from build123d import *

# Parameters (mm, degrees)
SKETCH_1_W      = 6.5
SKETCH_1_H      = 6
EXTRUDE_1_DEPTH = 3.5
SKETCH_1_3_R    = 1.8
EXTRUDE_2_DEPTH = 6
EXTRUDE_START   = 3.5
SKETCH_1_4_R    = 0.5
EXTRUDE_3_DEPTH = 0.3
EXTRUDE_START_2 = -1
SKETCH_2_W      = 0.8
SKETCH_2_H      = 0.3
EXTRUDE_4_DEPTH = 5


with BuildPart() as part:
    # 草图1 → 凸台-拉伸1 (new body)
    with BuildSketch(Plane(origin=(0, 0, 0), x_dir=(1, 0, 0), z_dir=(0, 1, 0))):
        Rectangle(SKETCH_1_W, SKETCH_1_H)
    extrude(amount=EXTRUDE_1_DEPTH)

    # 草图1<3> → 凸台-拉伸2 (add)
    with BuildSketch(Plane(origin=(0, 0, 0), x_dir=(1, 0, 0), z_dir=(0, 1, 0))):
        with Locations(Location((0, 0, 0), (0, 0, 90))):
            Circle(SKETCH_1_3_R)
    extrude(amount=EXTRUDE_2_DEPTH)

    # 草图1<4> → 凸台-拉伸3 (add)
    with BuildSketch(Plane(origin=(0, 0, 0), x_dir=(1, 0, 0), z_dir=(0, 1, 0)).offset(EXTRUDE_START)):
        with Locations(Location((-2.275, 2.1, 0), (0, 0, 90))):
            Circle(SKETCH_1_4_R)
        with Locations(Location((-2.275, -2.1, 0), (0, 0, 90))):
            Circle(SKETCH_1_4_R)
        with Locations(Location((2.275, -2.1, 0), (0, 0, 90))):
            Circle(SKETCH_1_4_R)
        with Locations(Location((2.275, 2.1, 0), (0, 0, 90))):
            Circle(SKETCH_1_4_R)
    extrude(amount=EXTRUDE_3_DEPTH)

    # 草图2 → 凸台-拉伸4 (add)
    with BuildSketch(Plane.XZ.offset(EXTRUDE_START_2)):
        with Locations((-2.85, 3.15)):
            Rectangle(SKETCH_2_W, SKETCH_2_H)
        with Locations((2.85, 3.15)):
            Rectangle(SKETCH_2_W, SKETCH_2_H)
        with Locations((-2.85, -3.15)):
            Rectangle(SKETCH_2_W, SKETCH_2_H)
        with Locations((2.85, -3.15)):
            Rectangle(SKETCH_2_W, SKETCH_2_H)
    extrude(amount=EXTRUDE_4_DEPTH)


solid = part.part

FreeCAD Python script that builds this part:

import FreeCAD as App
import Part
import Sketcher
from FreeCAD import Vector


def add_polygon(sketch, points):
    """Adds a closed chain of lines whose ends are joined by coincident constraints."""
    first, n = sketch.GeometryCount, len(points)
    for a, b in zip(points, points[1:] + points[:1]):
        sketch.addGeometry(Part.LineSegment(App.Vector(*a, 0), App.Vector(*b, 0)), False)
    for i in range(n):
        sketch.addConstraint(Sketcher.Constraint("Coincident", first + i, 2, first + (i + 1) % n, 1))

doc = App.newDocument("Part")
body = doc.addObject("PartDesign::Body", "Body")

sketch1 = body.newObject("Sketcher::SketchObject", "Sketch")
sketch1.AttachmentSupport = (doc.getObject("XZ_Plane"), [""])
sketch1.MapMode = "FlatFace"
add_polygon(sketch1, [(-3, -3), (-3, 3), (3, 3), (3, -3)])
sketch1.addConstraint(Sketcher.Constraint("Vertical", 0))
sketch1.addConstraint(Sketcher.Constraint("Horizontal", 1))
sketch1.addConstraint(Sketcher.Constraint("Vertical", 2))
sketch1.addConstraint(Sketcher.Constraint("Horizontal", 3))
sketch1.addConstraint(Sketcher.Constraint("Symmetric", 0, 2, 2, 2, -1, 1))
sketch1.addConstraint(Sketcher.Constraint("DistanceY", 0, 1, 0, 2, 6.0))
sketch1.addConstraint(Sketcher.Constraint("DistanceX", 1, 1, 1, 2, 6.5))
pad1 = body.newObject("PartDesign::Pad", "Pad")
pad1.Profile = sketch1
pad1.Length = 3.5
pad1.Reversed = True

sketch2 = body.newObject("Sketcher::SketchObject", "Sketch001")
sketch2.AttachmentSupport = (doc.getObject("XZ_Plane"), [""])
sketch2.MapMode = "FlatFace"
sketch2.addGeometry(Part.Circle(Vector(0, 0, 0), Vector(0, 0, 1), 1.8), False)
sketch2.addConstraint(Sketcher.Constraint("Coincident", 0, 3, -1, 1))
sketch2.addConstraint(Sketcher.Constraint("Diameter", 0, 3.6))
pad2 = body.newObject("PartDesign::Pad", "Pad001")
pad2.Profile = sketch2
pad2.Length = 6
pad2.Reversed = True

sketch3 = body.newObject("Sketcher::SketchObject", "Sketch002")
sketch3.AttachmentSupport = (doc.getObject("XZ_Plane"), [""])
sketch3.MapMode = "FlatFace"
sketch3.AttachmentOffset = App.Placement(Vector(0, 0, -3.5), App.Rotation())
sketch3.addGeometry(Part.Circle(Vector(-2.3, -2.1, 0), Vector(0, 0, 1), 0.5), False)
sketch3.addGeometry(Part.Circle(Vector(-2.3, 2.1, 0), Vector(0, 0, 1), 0.5), False)
sketch3.addGeometry(Part.Circle(Vector(2.3, 2.1, 0), Vector(0, 0, 1), 0.5), False)
sketch3.addGeometry(Part.Circle(Vector(2.3, -2.1, 0), Vector(0, 0, 1), 0.5), False)
sketch3.addConstraint(Sketcher.Constraint("Equal", 0, 1))
sketch3.addConstraint(Sketcher.Constraint("Equal", 1, 2))
sketch3.addConstraint(Sketcher.Constraint("Equal", 2, 3))
sketch3.addConstraint(Sketcher.Constraint("Symmetric", 0, 3, 2, 3, -1, 1))
sketch3.addConstraint(Sketcher.Constraint("Symmetric", 1, 3, 3, 3, -1, 1))
sketch3.addConstraint(Sketcher.Constraint("Symmetric", 1, 3, 2, 3, -2))
sketch3.addConstraint(Sketcher.Constraint("Diameter", 0, 1.0))
sketch3.addConstraint(Sketcher.Constraint("DistanceY", 0, 3, -1, 1, 2.1))
sketch3.addConstraint(Sketcher.Constraint("DistanceX", 1, 3, 2, 3, 4.55))
pad3 = body.newObject("PartDesign::Pad", "Pad002")
pad3.Profile = sketch3
pad3.Length = 0.3
pad3.Reversed = True

sketch4 = body.newObject("Sketcher::SketchObject", "Sketch003")
sketch4.AttachmentSupport = (doc.getObject("XZ_Plane"), [""])
sketch4.MapMode = "FlatFace"
sketch4.AttachmentOffset = App.Placement(Vector(0, 0, -1), App.Rotation())
add_polygon(sketch4, [(-3.25, 3.3), (-3.25, 3), (-2.45, 3), (-2.45, 3.3)])
add_polygon(sketch4, [(2.45, 3.3), (2.45, 3), (3.25, 3), (3.25, 3.3)])
add_polygon(sketch4, [(-3.25, -3), (-3.25, -3.3), (-2.45, -3.3), (-2.45, -3)])
add_polygon(sketch4, [(2.45, -3), (2.45, -3.3), (3.25, -3.3), (3.25, -3)])
sketch4.addConstraint(Sketcher.Constraint("Vertical", 0))
sketch4.addConstraint(Sketcher.Constraint("Horizontal", 1))
sketch4.addConstraint(Sketcher.Constraint("Vertical", 2))
sketch4.addConstraint(Sketcher.Constraint("Horizontal", 3))
sketch4.addConstraint(Sketcher.Constraint("Vertical", 4))
sketch4.addConstraint(Sketcher.Constraint("Horizontal", 5))
sketch4.addConstraint(Sketcher.Constraint("Vertical", 6))
sketch4.addConstraint(Sketcher.Constraint("Horizontal", 7))
sketch4.addConstraint(Sketcher.Constraint("Vertical", 8))
sketch4.addConstraint(Sketcher.Constraint("Horizontal", 9))
sketch4.addConstraint(Sketcher.Constraint("Vertical", 10))
sketch4.addConstraint(Sketcher.Constraint("Horizontal", 11))
sketch4.addConstraint(Sketcher.Constraint("Vertical", 12))
sketch4.addConstraint(Sketcher.Constraint("Horizontal", 13))
sketch4.addConstraint(Sketcher.Constraint("Vertical", 14))
sketch4.addConstraint(Sketcher.Constraint("Horizontal", 15))
sketch4.addConstraint(Sketcher.Constraint("Symmetric", 6, 2, 8, 2, -1, 1))
sketch4.addConstraint(Sketcher.Constraint("Symmetric", 4, 2, 10, 2, -1, 1))
sketch4.addConstraint(Sketcher.Constraint("Symmetric", 2, 2, 12, 2, -1, 1))
sketch4.addConstraint(Sketcher.Constraint("Symmetric", 0, 2, 14, 2, -1, 1))
sketch4.addConstraint(Sketcher.Constraint("Symmetric", 1, 2, 4, 2, -2))
sketch4.addConstraint(Sketcher.Constraint("Symmetric", 3, 2, 6, 2, -2))
sketch4.addConstraint(Sketcher.Constraint("DistanceX", 1, 1, 1, 2, 0.8))
sketch4.addConstraint(Sketcher.Constraint("DistanceY", 0, 2, 0, 1, 0.3))
sketch4.addConstraint(Sketcher.Constraint("DistanceY", -1, 1, 0, 2, 3.0))
sketch4.addConstraint(Sketcher.Constraint("DistanceX", 1, 2, 4, 2, 4.9))
pad4 = body.newObject("PartDesign::Pad", "Pad003")
pad4.Profile = sketch4
pad4.Length = 5

doc.recompute()
